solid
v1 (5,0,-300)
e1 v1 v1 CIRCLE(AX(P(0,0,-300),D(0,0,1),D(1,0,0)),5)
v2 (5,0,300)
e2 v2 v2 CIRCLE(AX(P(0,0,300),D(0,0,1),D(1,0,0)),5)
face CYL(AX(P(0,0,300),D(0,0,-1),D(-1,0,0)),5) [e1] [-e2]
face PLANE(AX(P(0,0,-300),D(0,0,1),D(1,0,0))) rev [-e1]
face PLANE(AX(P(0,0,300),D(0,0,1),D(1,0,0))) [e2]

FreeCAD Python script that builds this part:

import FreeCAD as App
import Part
import Sketcher
from FreeCAD import Vector
Q = App.Units.Quantity

doc = App.newDocument("Part")
body = doc.addObject("PartDesign::Body", "Body")

# Sketch on XY plane
sketch1 = body.newObject("Sketcher::SketchObject", "Sketch")
sketch1.AttachmentSupport = (doc.getObject("XY_Plane"), [""])
sketch1.MapMode = "FlatFace"
sketch1.addGeometry(Part.Circle(Vector(0, 0, 0), Vector(0, 0, 1), 5), False)
sketch1.addConstraint([
    Sketcher.Constraint("Coincident", 0, 3, -1, 1),
    Sketcher.Constraint("Diameter", 0, Q("10 mm")),
])
pad1 = body.newObject("PartDesign::Pad", "Pad")
pad1.Profile = sketch1
pad1.Length = 600
pad1.Midplane = True

doc.recompute()
